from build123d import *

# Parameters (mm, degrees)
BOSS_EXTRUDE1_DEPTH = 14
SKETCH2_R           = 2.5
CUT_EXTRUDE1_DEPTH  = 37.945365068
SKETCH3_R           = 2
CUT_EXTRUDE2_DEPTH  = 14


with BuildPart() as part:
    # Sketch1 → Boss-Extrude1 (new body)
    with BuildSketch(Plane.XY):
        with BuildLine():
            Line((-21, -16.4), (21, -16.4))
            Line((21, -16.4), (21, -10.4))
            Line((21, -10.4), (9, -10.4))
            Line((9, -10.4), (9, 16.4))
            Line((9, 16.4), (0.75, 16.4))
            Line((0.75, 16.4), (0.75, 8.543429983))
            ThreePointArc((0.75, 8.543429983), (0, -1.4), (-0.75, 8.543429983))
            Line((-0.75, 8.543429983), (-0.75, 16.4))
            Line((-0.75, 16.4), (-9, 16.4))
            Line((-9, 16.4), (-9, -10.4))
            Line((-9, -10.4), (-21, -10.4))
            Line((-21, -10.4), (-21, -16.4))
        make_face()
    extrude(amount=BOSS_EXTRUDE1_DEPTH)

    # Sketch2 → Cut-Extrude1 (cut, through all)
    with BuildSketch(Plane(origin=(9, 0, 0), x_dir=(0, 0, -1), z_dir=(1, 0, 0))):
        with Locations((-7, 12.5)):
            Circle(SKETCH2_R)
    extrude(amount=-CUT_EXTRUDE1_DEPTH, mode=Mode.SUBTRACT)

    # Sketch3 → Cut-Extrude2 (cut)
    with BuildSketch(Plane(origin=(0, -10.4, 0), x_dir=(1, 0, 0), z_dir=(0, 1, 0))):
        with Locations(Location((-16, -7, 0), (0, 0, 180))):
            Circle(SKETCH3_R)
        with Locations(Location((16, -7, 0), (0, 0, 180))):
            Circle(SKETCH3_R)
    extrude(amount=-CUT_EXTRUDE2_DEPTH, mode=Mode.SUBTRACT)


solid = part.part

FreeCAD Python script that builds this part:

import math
import FreeCAD as App
import Part
import Sketcher

V = App.Vector
Q = App.Units.Quantity

doc = App.newDocument("Part")
params = doc.addObject("Spreadsheet::Sheet", "Params")
for row, (alias, value) in enumerate([
    ("sketch1_radius", "5 mm"),
    ("sketch1_width", "42 mm"),
    ("sketch1_width2", "12 mm"),
    ("sketch1_height", "6 mm"),
    ("sketch1_height2", "26.8 mm"),
    ("pad1_length", "14 mm"),
    ("sketch2_diameter", "5 mm"),
    ("sketch3_diameter", "4 mm"),
    ("pocket2_length", "14 mm"),
], start=1):
    params.set(f"A{row}", alias)
    params.set(f"B{row}", "=" + value)
    params.setAlias(f"B{row}", alias)

body = doc.addObject("PartDesign::Body", "Body")

sketch1 = body.newObject("Sketcher::SketchObject", "Sketch")
sketch1.AttachmentSupport = (doc.getObject("XY_Plane"), [""])
sketch1.MapMode = "FlatFace"
sketch1.addGeometry(Part.LineSegment(V(-21, -16.4, 0), V(21, -16.4, 0)), False)
sketch1.addGeometry(Part.LineSegment(V(21, -16.4, 0), V(21, -10.4, 0)), False)
sketch1.addGeometry(Part.LineSegment(V(21, -10.4, 0), V(9, -10.4, 0)), False)
sketch1.addGeometry(Part.LineSegment(V(9, -10.4, 0), V(9, 16.4, 0)), False)
sketch1.addGeometry(Part.LineSegment(V(9, 16.4, 0), V(0.8, 16.4, 0)), False)
sketch1.addGeometry(Part.LineSegment(V(0.8, 16.4, 0), V(0.8, 8.5, 0)), False)
sketch1.addGeometry(Part.ArcOfCircle(Part.Circle(V(0, 3.6, 0), V(0, 0, 1), 5), math.radians(99), math.radians(441)), False)
sketch1.addGeometry(Part.LineSegment(V(-0.8, 8.5, 0), V(-0.8, 16.4, 0)), False)
sketch1.addGeometry(Part.LineSegment(V(-0.8, 16.4, 0), V(-9, 16.4, 0)), False)
sketch1.addGeometry(Part.LineSegment(V(-9, 16.4, 0), V(-9, -10.4, 0)), False)
sketch1.addGeometry(Part.LineSegment(V(-9, -10.4, 0), V(-21, -10.4, 0)), False)
sketch1.addGeometry(Part.LineSegment(V(-21, -10.4, 0), V(-21, -16.4, 0)), False)
sketch1.addConstraint(Sketcher.Constraint("Coincident", 0, 2, 1, 1))
sketch1.addConstraint(Sketcher.Constraint("Coincident", 1, 2, 2, 1))
sketch1.addConstraint(Sketcher.Constraint("Coincident", 2, 2, 3, 1))
sketch1.addConstraint(Sketcher.Constraint("Coincident", 3, 2, 4, 1))
sketch1.addConstraint(Sketcher.Constraint("Coincident", 4, 2, 5, 1))
sketch1.addConstraint(Sketcher.Constraint("Coincident", 5, 2, 6, 2))
sketch1.addConstraint(Sketcher.Constraint("Coincident", 6, 1, 7, 1))
sketch1.addConstraint(Sketcher.Constraint("Coincident", 7, 2, 8, 1))
sketch1.addConstraint(Sketcher.Constraint("Coincident", 8, 2, 9, 1))
sketch1.addConstraint(Sketcher.Constraint("Coincident", 9, 2, 10, 1))
sketch1.addConstraint(Sketcher.Constraint("Coincident", 10, 2, 11, 1))
sketch1.addConstraint(Sketcher.Constraint("Coincident", 11, 2, 0, 1))
sketch1.addConstraint(Sketcher.Constraint("Horizontal", 0))
sketch1.addConstraint(Sketcher.Constraint("Vertical", 1))
sketch1.addConstraint(Sketcher.Constraint("Horizontal", 2))
sketch1.addConstraint(Sketcher.Constraint("Vertical", 3))
sketch1.addConstraint(Sketcher.Constraint("Horizontal", 4))
sketch1.addConstraint(Sketcher.Constraint("Vertical", 5))
sketch1.addConstraint(Sketcher.Constraint("Vertical", 7))
sketch1.addConstraint(Sketcher.Constraint("Horizontal", 8))
sketch1.addConstraint(Sketcher.Constraint("Vertical", 9))
sketch1.addConstraint(Sketcher.Constraint("Horizontal", 10))
sketch1.addConstraint(Sketcher.Constraint("Vertical", 11))
sketch1.addConstraint(Sketcher.Constraint("Symmetric", 5, 2, 6, 1, -2))
sketch1.addConstraint(Sketcher.Constraint("Symmetric", 3, 2, 8, 2, -2))
sketch1.addConstraint(Sketcher.Constraint("Symmetric", 1, 2, 10, 2, -2))
sketch1.addConstraint(Sketcher.Constraint("Radius", 6, Q("5 mm")))
sketch1.addConstraint(Sketcher.Constraint("DistanceX", 0, 1, 0, 2, Q("42 mm")))
sketch1.addConstraint(Sketcher.Constraint("DistanceX", 2, 2, 2, 1, Q("12 mm")))
sketch1.addConstraint(Sketcher.Constraint("DistanceY", 1, 1, 1, 2, Q("6 mm")))
sketch1.addConstraint(Sketcher.Constraint("DistanceY", 3, 1, 3, 2, Q("26.8 mm")))
sketch1.addConstraint(Sketcher.Constraint("DistanceY", 0, 2, 6, 3, Q("20 mm")))
sketch1.addConstraint(Sketcher.Constraint("DistanceX", 4, 2, 4, 1, Q("8.25 mm")))
sketch1.addConstraint(Sketcher.Constraint("DistanceY", -1, 1, 6, 3, Q("3.6 mm")))
sketch1.setExpression("Constraints[26]", "Params.sketch1_radius")
sketch1.setExpression("Constraints[27]", "Params.sketch1_width")
sketch1.setExpression("Constraints[28]", "Params.sketch1_width2")
sketch1.setExpression("Constraints[29]", "Params.sketch1_height")
sketch1.setExpression("Constraints[30]", "Params.sketch1_height2")
pad1 = body.newObject("PartDesign::Pad", "Pad")
pad1.Profile = sketch1
pad1.setExpression("Length", "Params.pad1_length")

sketch2 = body.newObject("Sketcher::SketchObject", "Sketch001")
sketch2.AttachmentSupport = (doc.getObject("YZ_Plane"), [""])
sketch2.MapMode = "FlatFace"
sketch2.AttachmentOffset = App.Placement(V(0, 0, 9), App.Rotation())
sketch2.addGeometry(Part.Circle(V(12.5, 7, 0), V(0, 0, 1), 2.5), False)
sketch2.addConstraint(Sketcher.Constraint("Diameter", 0, Q("5 mm")))
sketch2.addConstraint(Sketcher.Constraint("DistanceY", -1, 1, 0, 3, Q("7 mm")))
sketch2.addConstraint(Sketcher.Constraint("DistanceX", -1, 1, 0, 3, Q("12.5 mm")))
sketch2.setExpression("Constraints[0]", "Params.sketch2_diameter")
pocket1 = body.newObject("PartDesign::Pocket", "Pocket")
pocket1.Profile = sketch2
pocket1.Type = "ThroughAll"

sketch3 = body.newObject("Sketcher::SketchObject", "Sketch002")
sketch3.AttachmentSupport = (doc.getObject("XZ_Plane"), [""])
sketch3.MapMode = "FlatFace"
sketch3.AttachmentOffset = App.Placement(V(0, 0, 10.4), App.Rotation())
sketch3.addGeometry(Part.Circle(V(-16, 7, 0), V(0, 0, 1), 2), False)
sketch3.addGeometry(Part.Circle(V(16, 7, 0), V(0, 0, 1), 2), False)
sketch3.addConstraint(Sketcher.Constraint("Equal", 0, 1))
sketch3.addConstraint(Sketcher.Constraint("Symmetric", 0, 3, 1, 3, -2))
sketch3.addConstraint(Sketcher.Constraint("Diameter", 0, Q("4 mm")))
sketch3.addConstraint(Sketcher.Constraint("DistanceX", 0, 3, -1, 1, Q("16 mm")))
sketch3.addConstraint(Sketcher.Constraint("DistanceY", -1, 1, 0, 3, Q("7 mm")))
sketch3.setExpression("Constraints[2]", "Params.sketch3_diameter")
pocket2 = body.newObject("PartDesign::Pocket", "Pocket001")
pocket2.Profile = sketch3
pocket2.setExpression("Length", "Params.pocket2_length")
pocket2.Reversed = True

doc.recompute()
